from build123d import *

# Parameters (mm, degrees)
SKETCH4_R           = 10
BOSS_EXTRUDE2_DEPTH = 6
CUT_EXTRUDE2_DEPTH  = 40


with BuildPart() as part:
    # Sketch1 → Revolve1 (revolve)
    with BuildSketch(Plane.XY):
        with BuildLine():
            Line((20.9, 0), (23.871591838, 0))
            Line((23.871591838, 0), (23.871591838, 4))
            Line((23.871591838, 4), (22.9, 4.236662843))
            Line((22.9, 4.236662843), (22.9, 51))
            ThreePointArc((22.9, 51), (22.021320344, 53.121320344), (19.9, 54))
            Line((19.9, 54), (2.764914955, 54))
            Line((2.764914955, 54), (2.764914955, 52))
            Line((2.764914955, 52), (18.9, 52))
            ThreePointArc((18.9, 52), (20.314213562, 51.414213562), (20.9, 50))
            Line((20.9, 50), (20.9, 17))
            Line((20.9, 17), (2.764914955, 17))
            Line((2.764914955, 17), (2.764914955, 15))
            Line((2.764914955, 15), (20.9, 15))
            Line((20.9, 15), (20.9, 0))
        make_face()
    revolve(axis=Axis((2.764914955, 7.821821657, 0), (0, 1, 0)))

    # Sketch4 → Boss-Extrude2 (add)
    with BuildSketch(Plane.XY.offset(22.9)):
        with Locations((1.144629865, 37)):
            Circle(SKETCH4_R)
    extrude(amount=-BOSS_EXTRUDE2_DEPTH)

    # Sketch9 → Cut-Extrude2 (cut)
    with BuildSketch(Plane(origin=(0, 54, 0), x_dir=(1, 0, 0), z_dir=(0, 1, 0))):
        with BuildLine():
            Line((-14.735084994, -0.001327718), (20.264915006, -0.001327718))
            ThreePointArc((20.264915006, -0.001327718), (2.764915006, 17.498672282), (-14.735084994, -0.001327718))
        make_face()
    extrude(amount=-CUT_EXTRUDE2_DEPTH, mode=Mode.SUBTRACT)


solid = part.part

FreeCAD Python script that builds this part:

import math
import FreeCAD as App
import Part
import Sketcher

doc = App.newDocument("Part")
body = doc.addObject("PartDesign::Body", "Body")

sketch1 = body.newObject("Sketcher::SketchObject", "Sketch")
sketch1.AttachmentSupport = (doc.getObject("XY_Plane"), [""])
sketch1.MapMode = "FlatFace"
sketch1.addGeometry(Part.LineSegment(App.Vector(20.9, 0, 0), App.Vector(23.9, 0, 0)), False)
sketch1.addGeometry(Part.LineSegment(App.Vector(23.9, 0, 0), App.Vector(23.9, 4, 0)), False)
sketch1.addGeometry(Part.LineSegment(App.Vector(23.9, 4, 0), App.Vector(22.9, 4.2, 0)), False)
sketch1.addGeometry(Part.LineSegment(App.Vector(22.9, 4.2, 0), App.Vector(22.9, 51, 0)), False)
sketch1.addGeometry(Part.ArcOfCircle(Part.Circle(App.Vector(19.9, 51, 0), App.Vector(0, 0, 1), 3), math.radians(0), math.radians(90)), False)
sketch1.addGeometry(Part.LineSegment(App.Vector(19.9, 54, 0), App.Vector(2.8, 54, 0)), False)
sketch1.addGeometry(Part.LineSegment(App.Vector(2.8, 54, 0), App.Vector(2.8, 52, 0)), False)
sketch1.addGeometry(Part.LineSegment(App.Vector(2.8, 52, 0), App.Vector(18.9, 52, 0)), False)
sketch1.addGeometry(Part.ArcOfCircle(Part.Circle(App.Vector(18.9, 50, 0), App.Vector(0, 0, 1), 2), math.radians(0), math.radians(90)), False)
sketch1.addGeometry(Part.LineSegment(App.Vector(20.9, 50, 0), App.Vector(20.9, 17, 0)), False)
sketch1.addGeometry(Part.LineSegment(App.Vector(20.9, 17, 0), App.Vector(2.8, 17, 0)), False)
sketch1.addGeometry(Part.LineSegment(App.Vector(2.8, 17, 0), App.Vector(2.8, 15, 0)), False)
sketch1.addGeometry(Part.LineSegment(App.Vector(2.8, 15, 0), App.Vector(20.9, 15, 0)), False)
sketch1.addGeometry(Part.LineSegment(App.Vector(20.9, 15, 0), App.Vector(20.9, 0, 0)), False)
sketch1.addGeometry(Part.LineSegment(App.Vector(2.8, 0, 0), App.Vector(2.8, 54, 0)), True)
sketch1.addConstraint(Sketcher.Constraint("Coincident", 0, 2, 1, 1))
sketch1.addConstraint(Sketcher.Constraint("Coincident", 1, 2, 2, 1))
sketch1.addConstraint(Sketcher.Constraint("Coincident", 2, 2, 3, 1))
sketch1.addConstraint(Sketcher.Constraint("Tangent", 3, 2, 4, 1))
sketch1.addConstraint(Sketcher.Constraint("Tangent", 4, 2, 5, 1))
sketch1.addConstraint(Sketcher.Constraint("Coincident", 5, 2, 6, 1))
sketch1.addConstraint(Sketcher.Constraint("Coincident", 6, 2, 7, 1))
sketch1.addConstraint(Sketcher.Constraint("Tangent", 7, 2, 8, 2))
sketch1.addConstraint(Sketcher.Constraint("Tangent", 8, 1, 9, 1))
sketch1.addConstraint(Sketcher.Constraint("Coincident", 9, 2, 10, 1))
sketch1.addConstraint(Sketcher.Constraint("Coincident", 10, 2, 11, 1))
sketch1.addConstraint(Sketcher.Constraint("Coincident", 11, 2, 12, 1))
sketch1.addConstraint(Sketcher.Constraint("Coincident", 12, 2, 13, 1))
sketch1.addConstraint(Sketcher.Constraint("Coincident", 13, 2, 0, 1))
sketch1.addConstraint(Sketcher.Constraint("Horizontal", 0))
sketch1.addConstraint(Sketcher.Constraint("Vertical", 1))
sketch1.addConstraint(Sketcher.Constraint("Vertical", 3))
sketch1.addConstraint(Sketcher.Constraint("Horizontal", 5))
sketch1.addConstraint(Sketcher.Constraint("Vertical", 6))
sketch1.addConstraint(Sketcher.Constraint("Horizontal", 7))
sketch1.addConstraint(Sketcher.Constraint("Vertical", 9))
sketch1.addConstraint(Sketcher.Constraint("Horizontal", 10))
sketch1.addConstraint(Sketcher.Constraint("Vertical", 11))
sketch1.addConstraint(Sketcher.Constraint("Horizontal", 12))
sketch1.addConstraint(Sketcher.Constraint("Vertical", 13))
sketch1.addConstraint(Sketcher.Constraint("Vertical", 14))
sketch1.addConstraint(Sketcher.Constraint("Coincident", 14, 2, 5, 2))
sketch1.addConstraint(Sketcher.Constraint("PointOnObject", 0, 2, -1))
sketch1.addConstraint(Sketcher.Constraint("PointOnObject", 14, 1, -1))
sketch1.addConstraint(Sketcher.Constraint("Vertical", 6, 2, 10, 2))
sketch1.addConstraint(Sketcher.Constraint("Vertical", 9, 2, 12, 2))
sketch1.addConstraint(Sketcher.Constraint("Equal", 6, 11))
sketch1.addConstraint(Sketcher.Constraint("Radius", 4, 3.0))
sketch1.addConstraint(Sketcher.Constraint("Radius", 8, 2.0))
sketch1.addConstraint(Sketcher.Constraint("DistanceY", 1, 1, 1, 2, 4.0))
sketch1.addConstraint(Sketcher.Constraint("DistanceY", 6, 2, 6, 1, 2.0))
sketch1.addConstraint(Sketcher.Constraint("DistanceY", 9, 2, 9, 1, 33.0))
sketch1.addConstraint(Sketcher.Constraint("DistanceY", 13, 2, 13, 1, 15.0))
sketch1.addConstraint(Sketcher.Constraint("Distance", 2, 1.0))
sketch1.addConstraint(Sketcher.Constraint("DistanceX", 8, 3, 4, 3, 1.0))
sketch1.addConstraint(Sketcher.Constraint("DistanceX", -1, 1, 4, 3, 19.9))
sketch1.addConstraint(Sketcher.Constraint("DistanceX", 0, 1, 0, 2, 2.971592))
sketch1.addConstraint(Sketcher.Constraint("DistanceX", 5, 2, 5, 1, 17.135085))
revolution = body.newObject("PartDesign::Revolution", "Revolution")
revolution.Profile = sketch1
revolution.ReferenceAxis = (sketch1, ["Axis0"])
revolution.Angle = 360

sketch2 = body.newObject("Sketcher::SketchObject", "Sketch001")
sketch2.AttachmentSupport = (doc.getObject("XY_Plane"), [""])
sketch2.MapMode = "FlatFace"
sketch2.AttachmentOffset = App.Placement(App.Vector(0, 0, 22.9), App.Rotation())
sketch2.addGeometry(Part.Circle(App.Vector(1, 37, 0), App.Vector(0, 0, 1), 10), False)
sketch2.addConstraint(Sketcher.Constraint("Diameter", 0, 20.0))
sketch2.addConstraint(Sketcher.Constraint("DistanceY", -1, 1, 0, 3, 37.0))
sketch2.addConstraint(Sketcher.Constraint("DistanceX", -1, 1, 0, 3, 1.14463))
pad1 = body.newObject("PartDesign::Pad", "Pad")
pad1.Profile = sketch2
pad1.Length = 6
pad1.Reversed = True

sketch3 = body.newObject("Sketcher::SketchObject", "Sketch002")
sketch3.AttachmentSupport = (doc.getObject("XZ_Plane"), [""])
sketch3.MapMode = "FlatFace"
sketch3.AttachmentOffset = App.Placement(App.Vector(0, 0, -54), App.Rotation())
sketch3.addGeometry(Part.LineSegment(App.Vector(-15, 0, 0), App.Vector(20, 0, 0)), False)
sketch3.addGeometry(Part.ArcOfCircle(Part.Circle(App.Vector(3, 0, 0), App.Vector(0, 0, 1), 18), math.radians(180), math.radians(360)), False)
sketch3.addConstraint(Sketcher.Constraint("Coincident", 0, 1, 1, 1))
sketch3.addConstraint(Sketcher.Constraint("Coincident", 1, 2, 0, 2))
sketch3.addConstraint(Sketcher.Constraint("Horizontal", 0))
sketch3.addConstraint(Sketcher.Constraint("Horizontal", 1, 3, 0, 1))
sketch3.addConstraint(Sketcher.Constraint("Radius", 1, 17.5))
sketch3.addConstraint(Sketcher.Constraint("DistanceX", -1, 1, 1, 3, 2.764915))
sketch3.addConstraint(Sketcher.Constraint("DistanceY", -1, 1, 1, 3, 0.001328))
pocket1 = body.newObject("PartDesign::Pocket", "Pocket")
pocket1.Profile = sketch3
pocket1.Length = 40
pocket1.Reversed = True

doc.recompute()
